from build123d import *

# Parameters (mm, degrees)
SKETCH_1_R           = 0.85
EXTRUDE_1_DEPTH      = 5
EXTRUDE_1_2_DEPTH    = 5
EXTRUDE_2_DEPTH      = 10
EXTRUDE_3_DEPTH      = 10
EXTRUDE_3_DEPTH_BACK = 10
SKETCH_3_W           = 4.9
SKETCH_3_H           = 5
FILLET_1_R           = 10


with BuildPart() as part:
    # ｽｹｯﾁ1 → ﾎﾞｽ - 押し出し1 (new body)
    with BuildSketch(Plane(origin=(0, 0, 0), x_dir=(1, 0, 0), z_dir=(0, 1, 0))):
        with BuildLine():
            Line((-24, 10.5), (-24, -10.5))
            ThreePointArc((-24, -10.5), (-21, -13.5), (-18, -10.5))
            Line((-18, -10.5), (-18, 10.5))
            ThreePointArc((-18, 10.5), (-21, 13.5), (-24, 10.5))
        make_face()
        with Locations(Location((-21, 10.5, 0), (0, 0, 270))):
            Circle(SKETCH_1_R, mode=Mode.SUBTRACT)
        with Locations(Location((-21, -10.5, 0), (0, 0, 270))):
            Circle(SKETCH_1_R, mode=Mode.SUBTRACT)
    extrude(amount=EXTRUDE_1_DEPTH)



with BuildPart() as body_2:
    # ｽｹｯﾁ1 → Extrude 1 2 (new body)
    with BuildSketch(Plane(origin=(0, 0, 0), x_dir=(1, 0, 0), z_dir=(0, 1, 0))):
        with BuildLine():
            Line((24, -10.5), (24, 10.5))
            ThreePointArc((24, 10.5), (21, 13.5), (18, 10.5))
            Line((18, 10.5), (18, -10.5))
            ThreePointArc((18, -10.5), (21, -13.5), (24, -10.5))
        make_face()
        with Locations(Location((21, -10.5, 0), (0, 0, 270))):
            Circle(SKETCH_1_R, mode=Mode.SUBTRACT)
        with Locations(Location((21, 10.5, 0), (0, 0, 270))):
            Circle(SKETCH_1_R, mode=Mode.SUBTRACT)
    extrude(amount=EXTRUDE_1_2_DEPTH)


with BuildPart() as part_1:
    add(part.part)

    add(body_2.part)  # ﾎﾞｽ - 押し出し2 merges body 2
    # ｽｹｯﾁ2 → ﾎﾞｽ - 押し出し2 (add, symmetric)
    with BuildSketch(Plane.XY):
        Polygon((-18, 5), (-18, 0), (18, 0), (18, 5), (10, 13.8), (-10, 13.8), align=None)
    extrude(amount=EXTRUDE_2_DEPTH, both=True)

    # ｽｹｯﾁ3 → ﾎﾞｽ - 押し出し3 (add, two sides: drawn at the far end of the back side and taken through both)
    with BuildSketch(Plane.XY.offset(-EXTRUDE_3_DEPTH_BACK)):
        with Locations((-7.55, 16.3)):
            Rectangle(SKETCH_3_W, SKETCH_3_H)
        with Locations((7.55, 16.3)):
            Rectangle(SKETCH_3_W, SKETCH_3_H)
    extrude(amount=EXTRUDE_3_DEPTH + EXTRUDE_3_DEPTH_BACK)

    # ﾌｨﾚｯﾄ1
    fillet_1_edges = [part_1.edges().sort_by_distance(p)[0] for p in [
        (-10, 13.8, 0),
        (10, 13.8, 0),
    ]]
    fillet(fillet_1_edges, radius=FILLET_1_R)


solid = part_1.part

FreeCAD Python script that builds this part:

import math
import FreeCAD as App
import Part
import Sketcher
Q = App.Units.Quantity


def edges_at(feature, points):
    """Names of the edges that pass closest to the given points."""
    edges = feature.Shape.Edges
    near = lambda p: min(range(len(edges)), key=lambda i: edges[i].distToShape(Part.Vertex(*p))[0])
    return sorted({f"Edge{near(p) + 1}" for p in points})


def add_polygon(sketch, points):
    """Adds a closed chain of lines whose ends are joined by coincident constraints."""
    first, n = sketch.GeometryCount, len(points)
    for a, b in zip(points, points[1:] + points[:1]):
        sketch.addGeometry(Part.LineSegment(App.Vector(*a, 0), App.Vector(*b, 0)), False)
    for i in range(n):
        sketch.addConstraint(Sketcher.Constraint("Coincident", first + i, 2, first + (i + 1) % n, 1))

doc = App.newDocument("Part")
params = doc.addObject("Spreadsheet::Sheet", "Params")
for row, (alias, value) in enumerate([
    ("sketch1_radius", "3 mm"),
    ("sketch1_diameter", "1.7 mm"),
    ("sketch1_height", "21 mm"),
    ("pad1_length", "5 mm"),
    ("sketch2_radius", "3 mm"),
    ("sketch2_diameter", "1.7 mm"),
    ("sketch2_height", "21 mm"),
    ("pad2_length", "5 mm"),
    ("sketch3_width", "36 mm"),
    ("sketch3_width2", "20 mm"),
    ("sketch3_height", "5 mm"),
    ("pad3_length", "20 mm"),
    ("sketch4_height", "5 mm"),
    ("sketch4_width", "4.9 mm"),
    ("pad4_length", "10 mm"),
    ("pad4_length2", "10 mm"),
    ("fillet_radius", "10 mm"),
], start=1):
    params.set(f"A{row}", alias)
    params.set(f"B{row}", "=" + value)
    params.setAlias(f"B{row}", alias)

body = doc.addObject("PartDesign::Body", "Body")

# Sketch on XZ plane
sketch1 = body.newObject("Sketcher::SketchObject", "Sketch")
sketch1.AttachmentSupport = (doc.getObject("XZ_Plane"), [""])
sketch1.MapMode = "FlatFace"
sketch1.addGeometry([
    Part.LineSegment(App.Vector(-24, -10.5, 0), App.Vector(-24, 10.5, 0)),  # 0
    Part.ArcOfCircle(Part.Circle(App.Vector(-21, 10.5, 0), App.Vector(0, 0, 1), 3), math.radians(0), math.radians(180)),  # 1
    Part.LineSegment(App.Vector(-18, 10.5, 0), App.Vector(-18, -10.5, 0)),  # 2
    Part.ArcOfCircle(Part.Circle(App.Vector(-21, -10.5, 0), App.Vector(0, 0, 1), 3), math.radians(180), math.radians(360)),  # 3
    Part.Circle(App.Vector(-21, 10.5, 0), App.Vector(0, 0, 1), 0.85),  # 4
    Part.Circle(App.Vector(-21, -10.5, 0), App.Vector(0, 0, 1), 0.85),  # 5
], False)
sketch1.addConstraint([
    Sketcher.Constraint("Tangent", 0, 2, 1, 2),
    Sketcher.Constraint("Tangent", 1, 1, 2, 1),
    Sketcher.Constraint("Tangent", 2, 2, 3, 2),
    Sketcher.Constraint("Tangent", 3, 1, 0, 1),
    Sketcher.Constraint("Vertical", 0),
    Sketcher.Constraint("Vertical", 2),
    Sketcher.Constraint("Coincident", 4, 3, 1, 3),
    Sketcher.Constraint("Coincident", 5, 3, 3, 3),
    Sketcher.Constraint("Equal", 4, 5),
    Sketcher.Constraint("Radius", 1, Q("3 mm")),
    Sketcher.Constraint("Diameter", 4, Q("1.7 mm")),
    Sketcher.Constraint("DistanceY", 0, 1, 0, 2, Q("21 mm")),
    Sketcher.Constraint("DistanceX", 1, 3, -1, 1, Q("21 mm")),
    Sketcher.Constraint("DistanceY", -1, 1, 1, 3, Q("10.5 mm")),
])
sketch1.setExpression("Constraints[9]", "Params.sketch1_radius")
sketch1.setExpression("Constraints[10]", "Params.sketch1_diameter")
sketch1.setExpression("Constraints[11]", "Params.sketch1_height")
pad1 = body.newObject("PartDesign::Pad", "Pad")
pad1.Profile = sketch1
pad1.setExpression("Length", "Params.pad1_length")
pad1.Reversed = True
body2 = doc.addObject("PartDesign::Body", "Body001")

# Sketch on XZ plane
sketch2 = body2.newObject("Sketcher::SketchObject", "Sketch001")
sketch2.AttachmentSupport = (doc.getObject("XZ_Plane001"), [""])
sketch2.MapMode = "FlatFace"
sketch2.addGeometry([
    Part.LineSegment(App.Vector(24, 10.5, 0), App.Vector(24, -10.5, 0)),  # 0
    Part.ArcOfCircle(Part.Circle(App.Vector(21, -10.5, 0), App.Vector(0, 0, 1), 3), math.radians(180), math.radians(360)),  # 1
    Part.LineSegment(App.Vector(18, -10.5, 0), App.Vector(18, 10.5, 0)),  # 2
    Part.ArcOfCircle(Part.Circle(App.Vector(21, 10.5, 0), App.Vector(0, 0, 1), 3), math.radians(0), math.radians(180)),  # 3
    Part.Circle(App.Vector(21, 10.5, 0), App.Vector(0, 0, 1), 0.85),  # 4
    Part.Circle(App.Vector(21, -10.5, 0), App.Vector(0, 0, 1), 0.85),  # 5
], False)
sketch2.addConstraint([
    Sketcher.Constraint("Tangent", 0, 2, 1, 2),
    Sketcher.Constraint("Tangent", 1, 1, 2, 1),
    Sketcher.Constraint("Tangent", 2, 2, 3, 2),
    Sketcher.Constraint("Tangent", 3, 1, 0, 1),
    Sketcher.Constraint("Vertical", 0),
    Sketcher.Constraint("Vertical", 2),
    Sketcher.Constraint("Coincident", 4, 3, 3, 3),
    Sketcher.Constraint("Coincident", 5, 3, 1, 3),
    Sketcher.Constraint("Equal", 4, 5),
    Sketcher.Constraint("Radius", 1, Q("3 mm")),
    Sketcher.Constraint("Diameter", 4, Q("1.7 mm")),
    Sketcher.Constraint("DistanceY", 0, 2, 0, 1, Q("21 mm")),
    Sketcher.Constraint("DistanceX", -1, 1, 1, 3, Q("21 mm")),
    Sketcher.Constraint("DistanceY", 1, 3, -1, 1, Q("10.5 mm")),
])
sketch2.setExpression("Constraints[9]", "Params.sketch2_radius")
sketch2.setExpression("Constraints[10]", "Params.sketch2_diameter")
sketch2.setExpression("Constraints[11]", "Params.sketch2_height")
pad2 = body2.newObject("PartDesign::Pad", "Pad001")
pad2.Profile = sketch2
pad2.setExpression("Length", "Params.pad2_length")
pad2.Reversed = True
body.AllowCompound = True
doc.recompute()

boolean = body.newObject("PartDesign::Boolean", "Boolean")
boolean.Type = "Fuse"
boolean.addObjects([body2])

# Sketch on XY plane
sketch3 = body.newObject("Sketcher::SketchObject", "Sketch002")
sketch3.AttachmentSupport = (doc.getObject("XY_Plane"), [""])
sketch3.MapMode = "FlatFace"
add_polygon(sketch3, [(-18, 5), (-18, 0), (18, 0), (18, 5), (10, 13.8), (-10, 13.8)])  # lines 0-5
sketch3.addConstraint([
    Sketcher.Constraint("Vertical", 0),
    Sketcher.Constraint("Horizontal", 1),
    Sketcher.Constraint("Vertical", 2),
    Sketcher.Constraint("Horizontal", 4),
    Sketcher.Constraint("Symmetric", 0, 2, 1, 2, -1, 1),
    Sketcher.Constraint("Horizontal", 2, 2, 5, 2),
    Sketcher.Constraint("Equal", 3, 5),
    Sketcher.Constraint("DistanceX", 1, 1, 1, 2, Q("36 mm")),
    Sketcher.Constraint("DistanceX", 4, 2, 4, 1, Q("20 mm")),
    Sketcher.Constraint("DistanceY", 0, 2, 0, 1, Q("5 mm")),
    Sketcher.Constraint("DistanceY", -1, 1, 3, 2, Q("13.8 mm")),
])
sketch3.setExpression("Constraints[13]", "Params.sketch3_width")
sketch3.setExpression("Constraints[14]", "Params.sketch3_width2")
sketch3.setExpression("Constraints[15]", "Params.sketch3_height")
pad3 = body.newObject("PartDesign::Pad", "Pad002")
pad3.Profile = sketch3
pad3.setExpression("Length", "Params.pad3_length")
pad3.Midplane = True

# Sketch on XY plane
sketch4 = body.newObject("Sketcher::SketchObject", "Sketch003")
sketch4.AttachmentSupport = (doc.getObject("XY_Plane"), [""])
sketch4.MapMode = "FlatFace"
add_polygon(sketch4, [(-10, 18.8), (-10, 13.8), (-5.1, 13.8), (-5.1, 18.8)])  # lines 0-3
add_polygon(sketch4, [(5.1, 18.8), (5.1, 13.8), (10, 13.8), (10, 18.8)])  # lines 4-7
sketch4.addConstraint([
    Sketcher.Constraint("Vertical", 0),
    Sketcher.Constraint("Horizontal", 1),
    Sketcher.Constraint("Vertical", 2),
    Sketcher.Constraint("Horizontal", 3),
    Sketcher.Constraint("Vertical", 4),
    Sketcher.Constraint("Horizontal", 5),
    Sketcher.Constraint("Vertical", 6),
    Sketcher.Constraint("Horizontal", 7),
    Sketcher.Constraint("Symmetric", 1, 2, 4, 2, -2),
    Sketcher.Constraint("Symmetric", 3, 2, 6, 2, -2),
    Sketcher.Constraint("DistanceY", 0, 2, 0, 1, Q("5 mm")),
    Sketcher.Constraint("DistanceX", 1, 1, 1, 2, Q("4.9 mm")),
    Sketcher.Constraint("DistanceX", 0, 2, -1, 1, Q("10 mm")),
    Sketcher.Constraint("DistanceY", -1, 1, 0, 2, Q("13.8 mm")),
])
sketch4.setExpression("Constraints[18]", "Params.sketch4_height")
sketch4.setExpression("Constraints[19]", "Params.sketch4_width")
pad4 = body.newObject("PartDesign::Pad", "Pad003")
pad4.Profile = sketch4
pad4.Type = "TwoLengths"
pad4.setExpression("Length", "Params.pad4_length")
pad4.setExpression("Length2", "Params.pad4_length2")
doc.recompute()

fillet = body.newObject("PartDesign::Fillet", "Fillet")
fillet.Base = (pad4, edges_at(pad4, [(-10, 13.8, 0), (10, 13.8, 0)]))
fillet.setExpression("Radius", "Params.fillet_radius")

doc.recompute()
